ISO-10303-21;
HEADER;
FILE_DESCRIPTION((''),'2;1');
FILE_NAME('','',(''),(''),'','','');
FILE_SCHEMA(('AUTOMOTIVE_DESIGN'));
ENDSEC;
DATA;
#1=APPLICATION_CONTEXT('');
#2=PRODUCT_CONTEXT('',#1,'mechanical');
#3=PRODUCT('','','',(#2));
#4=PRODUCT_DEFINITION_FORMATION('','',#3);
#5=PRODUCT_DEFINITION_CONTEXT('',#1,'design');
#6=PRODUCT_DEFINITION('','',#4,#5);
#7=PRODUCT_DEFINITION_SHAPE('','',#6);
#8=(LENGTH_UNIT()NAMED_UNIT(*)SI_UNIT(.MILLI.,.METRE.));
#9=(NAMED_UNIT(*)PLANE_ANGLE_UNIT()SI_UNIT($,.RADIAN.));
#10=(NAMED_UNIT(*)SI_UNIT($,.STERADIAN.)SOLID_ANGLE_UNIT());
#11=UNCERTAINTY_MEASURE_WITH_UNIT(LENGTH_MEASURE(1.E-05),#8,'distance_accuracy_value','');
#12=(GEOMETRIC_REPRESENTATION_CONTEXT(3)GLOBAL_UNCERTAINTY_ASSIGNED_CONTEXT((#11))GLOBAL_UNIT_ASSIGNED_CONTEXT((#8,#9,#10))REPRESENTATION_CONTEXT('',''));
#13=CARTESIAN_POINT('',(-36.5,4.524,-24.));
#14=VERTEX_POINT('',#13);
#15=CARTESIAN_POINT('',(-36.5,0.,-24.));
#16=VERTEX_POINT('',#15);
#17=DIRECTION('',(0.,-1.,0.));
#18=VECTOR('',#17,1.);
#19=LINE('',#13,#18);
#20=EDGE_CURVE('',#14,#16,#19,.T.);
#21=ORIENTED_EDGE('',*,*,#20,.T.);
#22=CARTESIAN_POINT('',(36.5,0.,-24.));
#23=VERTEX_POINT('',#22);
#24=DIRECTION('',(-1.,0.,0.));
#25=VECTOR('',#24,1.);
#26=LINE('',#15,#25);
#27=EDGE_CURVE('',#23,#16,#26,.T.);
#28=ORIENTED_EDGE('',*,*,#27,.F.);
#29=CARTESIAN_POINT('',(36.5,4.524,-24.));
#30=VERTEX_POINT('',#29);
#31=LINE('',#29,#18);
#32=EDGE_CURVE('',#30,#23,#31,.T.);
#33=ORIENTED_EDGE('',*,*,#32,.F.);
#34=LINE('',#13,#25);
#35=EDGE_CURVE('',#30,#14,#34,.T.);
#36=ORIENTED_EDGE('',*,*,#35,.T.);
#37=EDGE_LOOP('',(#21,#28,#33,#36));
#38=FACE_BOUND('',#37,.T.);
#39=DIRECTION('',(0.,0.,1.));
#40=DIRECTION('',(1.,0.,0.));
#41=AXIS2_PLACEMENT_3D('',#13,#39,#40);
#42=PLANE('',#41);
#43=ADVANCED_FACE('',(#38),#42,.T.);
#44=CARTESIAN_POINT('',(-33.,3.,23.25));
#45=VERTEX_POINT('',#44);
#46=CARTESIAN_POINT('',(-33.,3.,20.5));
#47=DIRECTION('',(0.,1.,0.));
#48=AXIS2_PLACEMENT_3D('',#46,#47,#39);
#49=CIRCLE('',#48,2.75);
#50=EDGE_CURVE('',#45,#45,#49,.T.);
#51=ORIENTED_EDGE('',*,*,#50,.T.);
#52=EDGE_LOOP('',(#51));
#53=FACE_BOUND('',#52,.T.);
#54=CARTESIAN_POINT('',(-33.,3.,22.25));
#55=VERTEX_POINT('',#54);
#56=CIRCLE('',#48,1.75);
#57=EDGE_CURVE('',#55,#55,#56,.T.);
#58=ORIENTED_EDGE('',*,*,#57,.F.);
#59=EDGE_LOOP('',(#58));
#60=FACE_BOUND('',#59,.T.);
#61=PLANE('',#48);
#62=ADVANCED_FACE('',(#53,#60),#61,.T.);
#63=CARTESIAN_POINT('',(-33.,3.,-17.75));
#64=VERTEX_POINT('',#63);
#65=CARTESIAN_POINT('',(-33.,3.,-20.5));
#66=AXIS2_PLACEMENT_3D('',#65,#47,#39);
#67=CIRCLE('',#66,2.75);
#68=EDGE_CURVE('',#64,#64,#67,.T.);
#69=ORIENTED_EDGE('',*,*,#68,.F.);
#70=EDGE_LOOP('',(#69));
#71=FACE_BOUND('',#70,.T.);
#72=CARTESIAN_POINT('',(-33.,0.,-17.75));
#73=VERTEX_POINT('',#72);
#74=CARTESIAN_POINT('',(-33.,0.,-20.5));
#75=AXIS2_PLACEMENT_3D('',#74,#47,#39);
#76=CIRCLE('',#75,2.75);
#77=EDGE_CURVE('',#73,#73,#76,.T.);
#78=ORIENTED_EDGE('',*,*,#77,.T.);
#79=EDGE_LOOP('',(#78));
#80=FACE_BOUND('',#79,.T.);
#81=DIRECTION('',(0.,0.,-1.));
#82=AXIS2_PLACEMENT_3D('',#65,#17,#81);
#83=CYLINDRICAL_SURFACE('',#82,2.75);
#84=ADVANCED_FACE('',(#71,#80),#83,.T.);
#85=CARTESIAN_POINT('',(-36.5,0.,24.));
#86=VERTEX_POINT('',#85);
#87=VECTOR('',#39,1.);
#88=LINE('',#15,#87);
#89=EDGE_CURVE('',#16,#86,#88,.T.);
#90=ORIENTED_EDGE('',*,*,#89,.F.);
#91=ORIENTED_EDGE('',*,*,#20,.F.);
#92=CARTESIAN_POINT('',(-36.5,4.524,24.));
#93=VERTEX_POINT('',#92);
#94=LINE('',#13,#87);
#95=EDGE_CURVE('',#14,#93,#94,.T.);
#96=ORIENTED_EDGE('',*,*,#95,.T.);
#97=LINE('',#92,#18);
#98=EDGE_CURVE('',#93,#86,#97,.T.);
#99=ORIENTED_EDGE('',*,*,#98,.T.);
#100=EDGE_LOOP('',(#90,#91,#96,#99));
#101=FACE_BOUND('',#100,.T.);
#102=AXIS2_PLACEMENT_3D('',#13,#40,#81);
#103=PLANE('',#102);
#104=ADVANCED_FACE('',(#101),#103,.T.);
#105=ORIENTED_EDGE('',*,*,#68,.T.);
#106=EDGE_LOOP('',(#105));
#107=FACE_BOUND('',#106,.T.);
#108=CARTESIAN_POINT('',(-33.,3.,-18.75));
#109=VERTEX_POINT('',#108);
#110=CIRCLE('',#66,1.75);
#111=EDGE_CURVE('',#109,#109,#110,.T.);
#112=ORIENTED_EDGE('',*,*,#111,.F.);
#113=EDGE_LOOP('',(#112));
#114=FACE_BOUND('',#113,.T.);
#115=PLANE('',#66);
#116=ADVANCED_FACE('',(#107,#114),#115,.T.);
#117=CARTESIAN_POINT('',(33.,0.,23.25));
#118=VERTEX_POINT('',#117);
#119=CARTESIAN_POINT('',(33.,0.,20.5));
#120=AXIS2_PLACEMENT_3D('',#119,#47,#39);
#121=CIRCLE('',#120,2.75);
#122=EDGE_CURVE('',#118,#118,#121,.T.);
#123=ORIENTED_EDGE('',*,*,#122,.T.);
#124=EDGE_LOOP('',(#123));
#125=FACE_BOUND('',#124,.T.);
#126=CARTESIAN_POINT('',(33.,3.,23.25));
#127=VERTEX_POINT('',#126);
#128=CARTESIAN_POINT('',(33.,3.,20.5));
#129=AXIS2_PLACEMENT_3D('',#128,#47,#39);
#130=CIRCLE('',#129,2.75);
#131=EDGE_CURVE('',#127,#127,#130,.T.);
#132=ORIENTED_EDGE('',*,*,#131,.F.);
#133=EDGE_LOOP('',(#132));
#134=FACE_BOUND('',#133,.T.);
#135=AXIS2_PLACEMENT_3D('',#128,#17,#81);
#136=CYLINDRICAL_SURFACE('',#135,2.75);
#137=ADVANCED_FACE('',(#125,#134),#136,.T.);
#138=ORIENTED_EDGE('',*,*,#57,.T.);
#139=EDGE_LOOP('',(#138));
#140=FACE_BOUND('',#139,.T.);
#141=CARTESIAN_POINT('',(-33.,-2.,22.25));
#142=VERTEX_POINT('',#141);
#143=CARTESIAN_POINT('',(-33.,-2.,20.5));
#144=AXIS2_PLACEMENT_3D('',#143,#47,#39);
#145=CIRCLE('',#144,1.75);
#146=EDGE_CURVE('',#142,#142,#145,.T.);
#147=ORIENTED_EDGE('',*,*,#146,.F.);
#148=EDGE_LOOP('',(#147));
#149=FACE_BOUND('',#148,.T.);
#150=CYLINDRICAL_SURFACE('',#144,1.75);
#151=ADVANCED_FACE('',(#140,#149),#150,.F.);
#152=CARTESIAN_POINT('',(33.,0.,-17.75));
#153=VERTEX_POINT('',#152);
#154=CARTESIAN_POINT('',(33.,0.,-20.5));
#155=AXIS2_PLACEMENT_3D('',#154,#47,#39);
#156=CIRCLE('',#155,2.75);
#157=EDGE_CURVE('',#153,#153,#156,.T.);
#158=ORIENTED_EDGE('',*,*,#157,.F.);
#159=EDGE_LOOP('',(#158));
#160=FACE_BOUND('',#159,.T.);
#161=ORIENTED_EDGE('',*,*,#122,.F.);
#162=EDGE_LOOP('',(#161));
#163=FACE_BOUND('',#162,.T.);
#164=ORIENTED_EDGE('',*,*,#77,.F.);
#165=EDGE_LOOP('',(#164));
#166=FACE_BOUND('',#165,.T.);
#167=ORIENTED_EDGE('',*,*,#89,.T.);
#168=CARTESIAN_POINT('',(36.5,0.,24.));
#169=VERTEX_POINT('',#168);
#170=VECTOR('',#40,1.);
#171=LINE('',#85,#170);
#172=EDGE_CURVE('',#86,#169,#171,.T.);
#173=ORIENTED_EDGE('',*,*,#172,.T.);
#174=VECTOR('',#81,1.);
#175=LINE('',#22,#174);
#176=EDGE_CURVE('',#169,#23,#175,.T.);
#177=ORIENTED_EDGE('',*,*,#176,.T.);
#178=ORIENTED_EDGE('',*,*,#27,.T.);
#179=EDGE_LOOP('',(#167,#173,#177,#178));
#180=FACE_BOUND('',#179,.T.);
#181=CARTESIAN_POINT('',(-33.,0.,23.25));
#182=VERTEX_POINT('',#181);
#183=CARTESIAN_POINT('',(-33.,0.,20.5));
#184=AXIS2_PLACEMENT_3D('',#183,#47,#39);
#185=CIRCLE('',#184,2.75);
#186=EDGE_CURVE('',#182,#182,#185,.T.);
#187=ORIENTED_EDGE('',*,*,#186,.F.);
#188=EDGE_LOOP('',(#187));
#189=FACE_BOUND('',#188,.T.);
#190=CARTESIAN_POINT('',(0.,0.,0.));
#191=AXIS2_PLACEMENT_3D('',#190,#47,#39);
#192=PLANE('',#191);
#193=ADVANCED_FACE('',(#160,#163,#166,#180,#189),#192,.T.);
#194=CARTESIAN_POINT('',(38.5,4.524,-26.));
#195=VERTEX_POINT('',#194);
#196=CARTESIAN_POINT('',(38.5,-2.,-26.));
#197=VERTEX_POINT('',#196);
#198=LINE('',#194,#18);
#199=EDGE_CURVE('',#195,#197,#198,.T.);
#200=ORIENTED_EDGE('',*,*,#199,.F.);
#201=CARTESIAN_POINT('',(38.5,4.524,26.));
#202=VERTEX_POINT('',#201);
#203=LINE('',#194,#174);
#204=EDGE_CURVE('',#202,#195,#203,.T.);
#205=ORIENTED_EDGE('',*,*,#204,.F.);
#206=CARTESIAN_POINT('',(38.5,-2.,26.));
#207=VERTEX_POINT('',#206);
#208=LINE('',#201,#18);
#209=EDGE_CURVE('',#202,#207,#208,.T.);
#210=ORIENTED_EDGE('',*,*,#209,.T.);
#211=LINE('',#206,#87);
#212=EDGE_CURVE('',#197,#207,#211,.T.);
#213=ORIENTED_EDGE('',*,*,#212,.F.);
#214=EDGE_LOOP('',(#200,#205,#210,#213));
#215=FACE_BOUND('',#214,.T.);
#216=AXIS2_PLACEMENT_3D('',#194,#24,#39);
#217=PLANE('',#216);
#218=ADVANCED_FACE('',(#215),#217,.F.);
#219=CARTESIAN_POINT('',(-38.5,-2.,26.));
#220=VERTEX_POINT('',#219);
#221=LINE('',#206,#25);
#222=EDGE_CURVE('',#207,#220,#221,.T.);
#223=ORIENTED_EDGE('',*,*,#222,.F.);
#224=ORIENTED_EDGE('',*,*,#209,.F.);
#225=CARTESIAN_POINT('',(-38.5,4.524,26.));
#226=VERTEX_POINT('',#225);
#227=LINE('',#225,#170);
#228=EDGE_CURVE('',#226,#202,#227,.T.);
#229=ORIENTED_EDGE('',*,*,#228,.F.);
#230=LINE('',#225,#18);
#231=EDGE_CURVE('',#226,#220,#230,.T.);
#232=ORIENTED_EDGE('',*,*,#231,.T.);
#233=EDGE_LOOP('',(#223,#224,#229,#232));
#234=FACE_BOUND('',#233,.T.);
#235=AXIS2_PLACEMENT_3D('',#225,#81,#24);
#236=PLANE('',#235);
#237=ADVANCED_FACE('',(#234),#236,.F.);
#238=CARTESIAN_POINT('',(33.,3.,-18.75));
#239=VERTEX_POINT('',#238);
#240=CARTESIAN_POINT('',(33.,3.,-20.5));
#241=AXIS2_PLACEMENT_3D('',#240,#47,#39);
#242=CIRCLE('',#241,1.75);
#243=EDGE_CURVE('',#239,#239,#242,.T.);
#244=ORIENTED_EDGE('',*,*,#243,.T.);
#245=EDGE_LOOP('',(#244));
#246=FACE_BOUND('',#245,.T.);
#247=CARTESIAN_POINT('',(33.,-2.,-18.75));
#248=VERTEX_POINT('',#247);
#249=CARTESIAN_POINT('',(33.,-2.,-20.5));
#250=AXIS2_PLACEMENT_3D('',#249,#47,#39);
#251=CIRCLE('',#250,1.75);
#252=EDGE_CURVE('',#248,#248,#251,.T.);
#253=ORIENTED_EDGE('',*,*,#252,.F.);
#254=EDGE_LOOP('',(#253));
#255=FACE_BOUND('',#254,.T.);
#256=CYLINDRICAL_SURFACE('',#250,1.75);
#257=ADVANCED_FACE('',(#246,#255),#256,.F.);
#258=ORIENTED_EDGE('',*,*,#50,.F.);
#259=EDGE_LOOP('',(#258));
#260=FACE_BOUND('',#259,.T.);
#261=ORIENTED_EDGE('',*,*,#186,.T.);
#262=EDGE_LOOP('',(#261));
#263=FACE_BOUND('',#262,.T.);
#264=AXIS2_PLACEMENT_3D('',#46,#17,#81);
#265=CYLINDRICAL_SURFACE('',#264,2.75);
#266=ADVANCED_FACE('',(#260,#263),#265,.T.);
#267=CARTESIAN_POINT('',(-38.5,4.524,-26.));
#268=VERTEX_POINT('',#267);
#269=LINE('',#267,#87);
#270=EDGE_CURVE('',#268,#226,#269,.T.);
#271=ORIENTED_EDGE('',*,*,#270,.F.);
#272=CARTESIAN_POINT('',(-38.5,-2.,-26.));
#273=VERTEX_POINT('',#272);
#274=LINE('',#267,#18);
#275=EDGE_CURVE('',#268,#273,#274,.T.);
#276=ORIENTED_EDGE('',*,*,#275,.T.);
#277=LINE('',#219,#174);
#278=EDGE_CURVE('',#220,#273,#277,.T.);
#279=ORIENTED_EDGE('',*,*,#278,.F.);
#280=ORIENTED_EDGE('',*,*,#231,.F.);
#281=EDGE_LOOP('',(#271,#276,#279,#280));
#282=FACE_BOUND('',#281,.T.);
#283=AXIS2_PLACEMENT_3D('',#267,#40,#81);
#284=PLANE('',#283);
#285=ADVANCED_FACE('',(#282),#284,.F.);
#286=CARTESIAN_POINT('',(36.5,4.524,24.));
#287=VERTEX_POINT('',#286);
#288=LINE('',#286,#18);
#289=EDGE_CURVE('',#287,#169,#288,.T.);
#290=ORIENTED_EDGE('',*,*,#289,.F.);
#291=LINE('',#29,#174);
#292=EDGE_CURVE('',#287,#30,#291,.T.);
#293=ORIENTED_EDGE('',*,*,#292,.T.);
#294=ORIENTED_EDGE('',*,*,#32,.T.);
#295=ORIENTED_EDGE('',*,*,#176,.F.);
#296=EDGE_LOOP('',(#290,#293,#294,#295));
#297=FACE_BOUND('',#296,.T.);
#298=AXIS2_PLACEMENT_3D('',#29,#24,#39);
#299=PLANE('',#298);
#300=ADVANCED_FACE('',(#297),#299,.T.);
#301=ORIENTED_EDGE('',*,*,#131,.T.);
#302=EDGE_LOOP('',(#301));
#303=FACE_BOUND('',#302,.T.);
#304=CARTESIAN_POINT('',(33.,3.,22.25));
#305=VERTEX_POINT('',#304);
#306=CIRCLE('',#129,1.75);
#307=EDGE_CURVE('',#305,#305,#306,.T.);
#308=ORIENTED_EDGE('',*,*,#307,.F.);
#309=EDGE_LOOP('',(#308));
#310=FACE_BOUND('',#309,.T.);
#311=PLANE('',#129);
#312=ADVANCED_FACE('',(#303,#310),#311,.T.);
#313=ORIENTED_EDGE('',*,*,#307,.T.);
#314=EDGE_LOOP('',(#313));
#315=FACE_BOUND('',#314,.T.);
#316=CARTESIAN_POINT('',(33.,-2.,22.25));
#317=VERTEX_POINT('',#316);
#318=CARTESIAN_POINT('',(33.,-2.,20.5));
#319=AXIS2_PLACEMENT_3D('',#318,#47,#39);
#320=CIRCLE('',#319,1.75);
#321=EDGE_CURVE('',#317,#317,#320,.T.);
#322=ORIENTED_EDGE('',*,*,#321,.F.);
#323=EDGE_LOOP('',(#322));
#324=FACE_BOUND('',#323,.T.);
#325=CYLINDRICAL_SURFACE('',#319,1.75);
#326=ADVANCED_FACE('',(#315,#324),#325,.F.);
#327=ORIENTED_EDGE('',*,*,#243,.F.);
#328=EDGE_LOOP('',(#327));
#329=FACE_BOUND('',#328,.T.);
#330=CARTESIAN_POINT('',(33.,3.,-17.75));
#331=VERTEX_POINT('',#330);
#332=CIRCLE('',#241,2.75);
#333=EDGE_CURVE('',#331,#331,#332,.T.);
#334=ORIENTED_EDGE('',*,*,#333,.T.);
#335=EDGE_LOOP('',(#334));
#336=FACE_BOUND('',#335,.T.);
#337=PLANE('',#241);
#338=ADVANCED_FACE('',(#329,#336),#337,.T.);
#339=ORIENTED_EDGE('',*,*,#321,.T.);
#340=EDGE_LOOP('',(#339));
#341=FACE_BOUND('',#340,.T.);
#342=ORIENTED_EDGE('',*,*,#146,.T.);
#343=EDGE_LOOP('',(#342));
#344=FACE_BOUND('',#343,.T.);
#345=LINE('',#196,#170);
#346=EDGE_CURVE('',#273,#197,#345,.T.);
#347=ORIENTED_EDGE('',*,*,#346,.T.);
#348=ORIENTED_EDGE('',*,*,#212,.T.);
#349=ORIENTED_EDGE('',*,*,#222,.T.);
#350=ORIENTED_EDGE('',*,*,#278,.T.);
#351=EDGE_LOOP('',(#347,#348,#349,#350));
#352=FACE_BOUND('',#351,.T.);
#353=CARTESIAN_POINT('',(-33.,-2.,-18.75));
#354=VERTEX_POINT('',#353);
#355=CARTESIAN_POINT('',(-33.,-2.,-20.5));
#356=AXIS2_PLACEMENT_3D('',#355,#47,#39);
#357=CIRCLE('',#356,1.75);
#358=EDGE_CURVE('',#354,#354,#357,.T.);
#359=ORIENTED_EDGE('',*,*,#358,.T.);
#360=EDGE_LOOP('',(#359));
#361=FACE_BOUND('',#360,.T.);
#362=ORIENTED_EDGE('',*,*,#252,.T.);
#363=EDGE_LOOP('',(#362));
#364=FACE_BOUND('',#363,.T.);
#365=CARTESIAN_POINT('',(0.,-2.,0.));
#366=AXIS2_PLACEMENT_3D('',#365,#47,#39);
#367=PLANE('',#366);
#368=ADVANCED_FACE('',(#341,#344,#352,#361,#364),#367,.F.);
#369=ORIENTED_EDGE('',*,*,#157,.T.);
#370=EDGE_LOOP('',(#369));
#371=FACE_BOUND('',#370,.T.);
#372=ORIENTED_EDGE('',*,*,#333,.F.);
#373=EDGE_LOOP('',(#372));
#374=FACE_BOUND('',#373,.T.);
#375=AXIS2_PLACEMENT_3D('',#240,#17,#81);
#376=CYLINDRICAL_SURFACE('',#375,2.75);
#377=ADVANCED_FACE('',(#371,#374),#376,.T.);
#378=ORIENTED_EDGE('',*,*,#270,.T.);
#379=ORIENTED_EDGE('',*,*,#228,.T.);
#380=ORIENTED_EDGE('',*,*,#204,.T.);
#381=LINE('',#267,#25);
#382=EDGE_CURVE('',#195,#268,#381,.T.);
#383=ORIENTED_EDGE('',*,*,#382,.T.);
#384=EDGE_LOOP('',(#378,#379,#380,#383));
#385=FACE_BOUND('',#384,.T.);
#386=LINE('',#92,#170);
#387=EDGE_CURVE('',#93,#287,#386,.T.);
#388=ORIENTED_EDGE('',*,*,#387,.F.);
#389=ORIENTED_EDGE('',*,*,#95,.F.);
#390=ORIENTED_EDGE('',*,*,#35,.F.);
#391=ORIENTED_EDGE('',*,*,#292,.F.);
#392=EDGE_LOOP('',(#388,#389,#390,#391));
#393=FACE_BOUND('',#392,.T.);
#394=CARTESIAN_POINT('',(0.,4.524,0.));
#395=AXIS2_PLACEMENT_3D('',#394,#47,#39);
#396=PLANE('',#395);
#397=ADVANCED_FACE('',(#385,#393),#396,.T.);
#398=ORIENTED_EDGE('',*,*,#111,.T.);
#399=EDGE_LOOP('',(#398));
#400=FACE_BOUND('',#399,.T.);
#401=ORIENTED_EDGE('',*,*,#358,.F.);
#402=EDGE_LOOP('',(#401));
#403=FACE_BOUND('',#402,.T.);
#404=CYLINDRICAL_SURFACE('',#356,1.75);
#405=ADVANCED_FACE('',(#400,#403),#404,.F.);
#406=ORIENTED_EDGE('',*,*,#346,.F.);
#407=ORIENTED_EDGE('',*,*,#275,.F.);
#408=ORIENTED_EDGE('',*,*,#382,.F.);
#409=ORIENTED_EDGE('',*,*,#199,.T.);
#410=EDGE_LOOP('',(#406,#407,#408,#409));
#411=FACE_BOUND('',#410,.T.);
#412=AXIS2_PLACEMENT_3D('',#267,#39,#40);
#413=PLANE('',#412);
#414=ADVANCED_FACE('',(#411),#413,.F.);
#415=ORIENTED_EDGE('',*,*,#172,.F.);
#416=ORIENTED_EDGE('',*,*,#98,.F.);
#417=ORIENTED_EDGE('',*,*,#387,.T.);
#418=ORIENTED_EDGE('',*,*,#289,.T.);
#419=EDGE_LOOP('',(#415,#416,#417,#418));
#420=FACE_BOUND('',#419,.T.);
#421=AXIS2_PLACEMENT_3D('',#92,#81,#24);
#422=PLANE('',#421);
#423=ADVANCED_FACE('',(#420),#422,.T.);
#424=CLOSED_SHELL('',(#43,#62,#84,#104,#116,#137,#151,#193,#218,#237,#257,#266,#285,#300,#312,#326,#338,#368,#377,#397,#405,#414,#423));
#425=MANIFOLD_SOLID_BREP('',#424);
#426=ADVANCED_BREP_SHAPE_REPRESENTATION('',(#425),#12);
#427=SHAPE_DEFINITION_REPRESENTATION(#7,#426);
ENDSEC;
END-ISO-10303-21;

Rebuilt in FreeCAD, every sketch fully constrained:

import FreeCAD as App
import Part
import Sketcher

V = App.Vector

doc = App.newDocument("Part")
body = doc.addObject("PartDesign::Body", "Body")

# Sketch on XZ plane
sketch1 = doc.addObject("Sketcher::SketchObject", "Sketch")
body.addObject(sketch1)
sketch1.AttachmentSupport = (doc.XZ_Plane, [""])
sketch1.MapMode = "FlatFace"
sketch1.addGeometry([
    Part.LineSegment(V(-38, -26, 0), V(-38, 26, 0)),  # 0
    Part.LineSegment(V(-38, 26, 0), V(38, 26, 0)),  # 1
    Part.LineSegment(V(38, 26, 0), V(38, -26, 0)),  # 2
    Part.LineSegment(V(38, -26, 0), V(-38, -26, 0)),  # 3
    Part.LineSegment(V(36, 24, 0), V(-36, 24, 0)),  # 4
    Part.LineSegment(V(-36, 24, 0), V(-36, -24, 0)),  # 5
    Part.LineSegment(V(-36, -24, 0), V(36, -24, 0)),  # 6
    Part.LineSegment(V(36, -24, 0), V(36, 24, 0)),  # 7
], False)
sketch1.addConstraint([
    Sketcher.Constraint("Coincident", 0, 2, 1, 1),
    Sketcher.Constraint("Coincident", 1, 2, 2, 1),
    Sketcher.Constraint("Coincident", 2, 2, 3, 1),
    Sketcher.Constraint("Coincident", 3, 2, 0, 1),
    Sketcher.Constraint("Coincident", 4, 2, 5, 1),
    Sketcher.Constraint("Coincident", 5, 2, 6, 1),
    Sketcher.Constraint("Coincident", 6, 2, 7, 1),
    Sketcher.Constraint("Coincident", 7, 2, 4, 1),
    Sketcher.Constraint("Vertical", 0),
    Sketcher.Constraint("Horizontal", 1),
    Sketcher.Constraint("Vertical", 2),
    Sketcher.Constraint("Horizontal", 3),
    Sketcher.Constraint("Horizontal", 4),
    Sketcher.Constraint("Vertical", 5),
    Sketcher.Constraint("Horizontal", 6),
    Sketcher.Constraint("Vertical", 7),
    Sketcher.Constraint("Symmetric", 0, 2, 2, 2, -1, 1),
    Sketcher.Constraint("Symmetric", 4, 2, 6, 2, -1, 1),
    Sketcher.Constraint("DistanceX", 1, 1, 1, 2, 77.0),
    Sketcher.Constraint("DistanceX", 4, 2, 4, 1, 73.0),
    Sketcher.Constraint("DistanceY", 0, 1, 0, 2, 52.0),
    Sketcher.Constraint("DistanceY", 5, 2, 5, 1, 48.0),
])
pad1 = doc.addObject("PartDesign::Pad", "Pad")
body.addObject(pad1)
pad1.Profile = sketch1
pad1.Length = 4.524
pad1.Reversed = True

# Sketch on XZ plane
sketch2 = doc.addObject("Sketcher::SketchObject", "Sketch001")
body.addObject(sketch2)
sketch2.AttachmentSupport = (doc.XZ_Plane, [""])
sketch2.MapMode = "FlatFace"
sketch2.addGeometry([
    Part.LineSegment(V(-38, 26, 0), V(-38, -26, 0)),
    Part.LineSegment(V(-38, -26, 0), V(38, -26, 0)),
    Part.LineSegment(V(38, -26, 0), V(38, 26, 0)),
    Part.LineSegment(V(38, 26, 0), V(-38, 26, 0)),
], False)
sketch2.addConstraint([
    Sketcher.Constraint("Coincident", 0, 2, 1, 1),
    Sketcher.Constraint("Coincident", 1, 2, 2, 1),
    Sketcher.Constraint("Coincident", 2, 2, 3, 1),
    Sketcher.Constraint("Coincident", 3, 2, 0, 1),
    Sketcher.Constraint("Vertical", 0),
    Sketcher.Constraint("Horizontal", 1),
    Sketcher.Constraint("Vertical", 2),
    Sketcher.Constraint("Horizontal", 3),
    Sketcher.Constraint("Symmetric", 0, 2, 2, 2, -1, 1),
    Sketcher.Constraint("DistanceX", 1, 1, 1, 2, 77.0),
    Sketcher.Constraint("DistanceY", 0, 2, 0, 1, 52.0),
])
pad2 = doc.addObject("PartDesign::Pad", "Pad001")
body.addObject(pad2)
pad2.Profile = sketch2
pad2.Length = 2

# Sketch on XZ plane
sketch3 = doc.addObject("Sketcher::SketchObject", "Sketch002")
body.addObject(sketch3)
sketch3.AttachmentSupport = (doc.XZ_Plane, [""])
sketch3.MapMode = "FlatFace"
sketch3.addGeometry([
    Part.Circle(V(-33, -20.5, 0), V(0, 0, 1), 1.8),
    Part.Circle(V(33, -20.5, 0), V(0, 0, 1), 1.8),
    Part.Circle(V(33, 20.5, 0), V(0, 0, 1), 1.8),
    Part.Circle(V(-33, 20.5, 0), V(0, 0, 1), 1.8),
], False)
sketch3.addConstraint([
    Sketcher.Constraint("Equal", 0, 1),
    Sketcher.Constraint("Equal", 1, 2),
    Sketcher.Constraint("Equal", 2, 3),
    Sketcher.Constraint("Symmetric", 0, 3, 2, 3, -1, 1),
    Sketcher.Constraint("Symmetric", 1, 3, 3, 3, -1, 1),
    Sketcher.Constraint("Symmetric", 0, 3, 1, 3, -2),
    Sketcher.Constraint("Diameter", 0, 3.5),
    Sketcher.Constraint("DistanceX", 0, 3, -1, 1, 33.0),
    Sketcher.Constraint("DistanceY", 1, 3, 2, 3, 41.0),
])
pocket1 = doc.addObject("PartDesign::Pocket", "Pocket")
body.addObject(pocket1)
pocket1.Profile = sketch3
pocket1.Length = 2
pocket1.Reversed = True

# Sketch on XZ plane
sketch4 = doc.addObject("Sketcher::SketchObject", "Sketch003")
body.addObject(sketch4)
sketch4.AttachmentSupport = (doc.XZ_Plane, [""])
sketch4.MapMode = "FlatFace"
sketch4.AttachmentOffset = App.Placement(V(0, 0, -3), App.Rotation())
sketch4.addGeometry([
    Part.Circle(V(-33, 20.5, 0), V(0, 0, 1), 2.8),  # 0
    Part.Circle(V(-33, 20.5, 0), V(0, 0, 1), 1.8),  # 1
    Part.Circle(V(33, 20.5, 0), V(0, 0, 1), 2.8),  # 2
    Part.Circle(V(33, 20.5, 0), V(0, 0, 1), 1.8),  # 3
    Part.Circle(V(33, -20.5, 0), V(0, 0, 1), 2.8),  # 4
    Part.Circle(V(33, -20.5, 0), V(0, 0, 1), 1.8),  # 5
    Part.Circle(V(-33, -20.5, 0), V(0, 0, 1), 2.8),  # 6
    Part.Circle(V(-33, -20.5, 0), V(0, 0, 1), 1.8),  # 7
], False)
sketch4.addConstraint([
    Sketcher.Constraint("Coincident", 1, 3, 0, 3),
    Sketcher.Constraint("Coincident", 3, 3, 2, 3),
    Sketcher.Constraint("Coincident", 5, 3, 4, 3),
    Sketcher.Constraint("Coincident", 7, 3, 6, 3),
    Sketcher.Constraint("Equal", 0, 2),
    Sketcher.Constraint("Equal", 1, 3),
    Sketcher.Constraint("Equal", 2, 4),
    Sketcher.Constraint("Equal", 3, 5),
    Sketcher.Constraint("Equal", 4, 6),
    Sketcher.Constraint("Equal", 5, 7),
    Sketcher.Constraint("Symmetric", 0, 3, 4, 3, -1, 1),
    Sketcher.Constraint("Symmetric", 2, 3, 6, 3, -1, 1),
    Sketcher.Constraint("Symmetric", 0, 3, 2, 3, -2),
    Sketcher.Constraint("Diameter", 0, 5.5),
    Sketcher.Constraint("Diameter", 1, 3.5),
    Sketcher.Constraint("DistanceX", 0, 3, -1, 1, 33.0),
    Sketcher.Constraint("DistanceY", 4, 3, 2, 3, 41.0),
])
pad3 = doc.addObject("PartDesign::Pad", "Pad002")
body.addObject(pad3)
pad3.Profile = sketch4
pad3.Length = 3

doc.recompute()
